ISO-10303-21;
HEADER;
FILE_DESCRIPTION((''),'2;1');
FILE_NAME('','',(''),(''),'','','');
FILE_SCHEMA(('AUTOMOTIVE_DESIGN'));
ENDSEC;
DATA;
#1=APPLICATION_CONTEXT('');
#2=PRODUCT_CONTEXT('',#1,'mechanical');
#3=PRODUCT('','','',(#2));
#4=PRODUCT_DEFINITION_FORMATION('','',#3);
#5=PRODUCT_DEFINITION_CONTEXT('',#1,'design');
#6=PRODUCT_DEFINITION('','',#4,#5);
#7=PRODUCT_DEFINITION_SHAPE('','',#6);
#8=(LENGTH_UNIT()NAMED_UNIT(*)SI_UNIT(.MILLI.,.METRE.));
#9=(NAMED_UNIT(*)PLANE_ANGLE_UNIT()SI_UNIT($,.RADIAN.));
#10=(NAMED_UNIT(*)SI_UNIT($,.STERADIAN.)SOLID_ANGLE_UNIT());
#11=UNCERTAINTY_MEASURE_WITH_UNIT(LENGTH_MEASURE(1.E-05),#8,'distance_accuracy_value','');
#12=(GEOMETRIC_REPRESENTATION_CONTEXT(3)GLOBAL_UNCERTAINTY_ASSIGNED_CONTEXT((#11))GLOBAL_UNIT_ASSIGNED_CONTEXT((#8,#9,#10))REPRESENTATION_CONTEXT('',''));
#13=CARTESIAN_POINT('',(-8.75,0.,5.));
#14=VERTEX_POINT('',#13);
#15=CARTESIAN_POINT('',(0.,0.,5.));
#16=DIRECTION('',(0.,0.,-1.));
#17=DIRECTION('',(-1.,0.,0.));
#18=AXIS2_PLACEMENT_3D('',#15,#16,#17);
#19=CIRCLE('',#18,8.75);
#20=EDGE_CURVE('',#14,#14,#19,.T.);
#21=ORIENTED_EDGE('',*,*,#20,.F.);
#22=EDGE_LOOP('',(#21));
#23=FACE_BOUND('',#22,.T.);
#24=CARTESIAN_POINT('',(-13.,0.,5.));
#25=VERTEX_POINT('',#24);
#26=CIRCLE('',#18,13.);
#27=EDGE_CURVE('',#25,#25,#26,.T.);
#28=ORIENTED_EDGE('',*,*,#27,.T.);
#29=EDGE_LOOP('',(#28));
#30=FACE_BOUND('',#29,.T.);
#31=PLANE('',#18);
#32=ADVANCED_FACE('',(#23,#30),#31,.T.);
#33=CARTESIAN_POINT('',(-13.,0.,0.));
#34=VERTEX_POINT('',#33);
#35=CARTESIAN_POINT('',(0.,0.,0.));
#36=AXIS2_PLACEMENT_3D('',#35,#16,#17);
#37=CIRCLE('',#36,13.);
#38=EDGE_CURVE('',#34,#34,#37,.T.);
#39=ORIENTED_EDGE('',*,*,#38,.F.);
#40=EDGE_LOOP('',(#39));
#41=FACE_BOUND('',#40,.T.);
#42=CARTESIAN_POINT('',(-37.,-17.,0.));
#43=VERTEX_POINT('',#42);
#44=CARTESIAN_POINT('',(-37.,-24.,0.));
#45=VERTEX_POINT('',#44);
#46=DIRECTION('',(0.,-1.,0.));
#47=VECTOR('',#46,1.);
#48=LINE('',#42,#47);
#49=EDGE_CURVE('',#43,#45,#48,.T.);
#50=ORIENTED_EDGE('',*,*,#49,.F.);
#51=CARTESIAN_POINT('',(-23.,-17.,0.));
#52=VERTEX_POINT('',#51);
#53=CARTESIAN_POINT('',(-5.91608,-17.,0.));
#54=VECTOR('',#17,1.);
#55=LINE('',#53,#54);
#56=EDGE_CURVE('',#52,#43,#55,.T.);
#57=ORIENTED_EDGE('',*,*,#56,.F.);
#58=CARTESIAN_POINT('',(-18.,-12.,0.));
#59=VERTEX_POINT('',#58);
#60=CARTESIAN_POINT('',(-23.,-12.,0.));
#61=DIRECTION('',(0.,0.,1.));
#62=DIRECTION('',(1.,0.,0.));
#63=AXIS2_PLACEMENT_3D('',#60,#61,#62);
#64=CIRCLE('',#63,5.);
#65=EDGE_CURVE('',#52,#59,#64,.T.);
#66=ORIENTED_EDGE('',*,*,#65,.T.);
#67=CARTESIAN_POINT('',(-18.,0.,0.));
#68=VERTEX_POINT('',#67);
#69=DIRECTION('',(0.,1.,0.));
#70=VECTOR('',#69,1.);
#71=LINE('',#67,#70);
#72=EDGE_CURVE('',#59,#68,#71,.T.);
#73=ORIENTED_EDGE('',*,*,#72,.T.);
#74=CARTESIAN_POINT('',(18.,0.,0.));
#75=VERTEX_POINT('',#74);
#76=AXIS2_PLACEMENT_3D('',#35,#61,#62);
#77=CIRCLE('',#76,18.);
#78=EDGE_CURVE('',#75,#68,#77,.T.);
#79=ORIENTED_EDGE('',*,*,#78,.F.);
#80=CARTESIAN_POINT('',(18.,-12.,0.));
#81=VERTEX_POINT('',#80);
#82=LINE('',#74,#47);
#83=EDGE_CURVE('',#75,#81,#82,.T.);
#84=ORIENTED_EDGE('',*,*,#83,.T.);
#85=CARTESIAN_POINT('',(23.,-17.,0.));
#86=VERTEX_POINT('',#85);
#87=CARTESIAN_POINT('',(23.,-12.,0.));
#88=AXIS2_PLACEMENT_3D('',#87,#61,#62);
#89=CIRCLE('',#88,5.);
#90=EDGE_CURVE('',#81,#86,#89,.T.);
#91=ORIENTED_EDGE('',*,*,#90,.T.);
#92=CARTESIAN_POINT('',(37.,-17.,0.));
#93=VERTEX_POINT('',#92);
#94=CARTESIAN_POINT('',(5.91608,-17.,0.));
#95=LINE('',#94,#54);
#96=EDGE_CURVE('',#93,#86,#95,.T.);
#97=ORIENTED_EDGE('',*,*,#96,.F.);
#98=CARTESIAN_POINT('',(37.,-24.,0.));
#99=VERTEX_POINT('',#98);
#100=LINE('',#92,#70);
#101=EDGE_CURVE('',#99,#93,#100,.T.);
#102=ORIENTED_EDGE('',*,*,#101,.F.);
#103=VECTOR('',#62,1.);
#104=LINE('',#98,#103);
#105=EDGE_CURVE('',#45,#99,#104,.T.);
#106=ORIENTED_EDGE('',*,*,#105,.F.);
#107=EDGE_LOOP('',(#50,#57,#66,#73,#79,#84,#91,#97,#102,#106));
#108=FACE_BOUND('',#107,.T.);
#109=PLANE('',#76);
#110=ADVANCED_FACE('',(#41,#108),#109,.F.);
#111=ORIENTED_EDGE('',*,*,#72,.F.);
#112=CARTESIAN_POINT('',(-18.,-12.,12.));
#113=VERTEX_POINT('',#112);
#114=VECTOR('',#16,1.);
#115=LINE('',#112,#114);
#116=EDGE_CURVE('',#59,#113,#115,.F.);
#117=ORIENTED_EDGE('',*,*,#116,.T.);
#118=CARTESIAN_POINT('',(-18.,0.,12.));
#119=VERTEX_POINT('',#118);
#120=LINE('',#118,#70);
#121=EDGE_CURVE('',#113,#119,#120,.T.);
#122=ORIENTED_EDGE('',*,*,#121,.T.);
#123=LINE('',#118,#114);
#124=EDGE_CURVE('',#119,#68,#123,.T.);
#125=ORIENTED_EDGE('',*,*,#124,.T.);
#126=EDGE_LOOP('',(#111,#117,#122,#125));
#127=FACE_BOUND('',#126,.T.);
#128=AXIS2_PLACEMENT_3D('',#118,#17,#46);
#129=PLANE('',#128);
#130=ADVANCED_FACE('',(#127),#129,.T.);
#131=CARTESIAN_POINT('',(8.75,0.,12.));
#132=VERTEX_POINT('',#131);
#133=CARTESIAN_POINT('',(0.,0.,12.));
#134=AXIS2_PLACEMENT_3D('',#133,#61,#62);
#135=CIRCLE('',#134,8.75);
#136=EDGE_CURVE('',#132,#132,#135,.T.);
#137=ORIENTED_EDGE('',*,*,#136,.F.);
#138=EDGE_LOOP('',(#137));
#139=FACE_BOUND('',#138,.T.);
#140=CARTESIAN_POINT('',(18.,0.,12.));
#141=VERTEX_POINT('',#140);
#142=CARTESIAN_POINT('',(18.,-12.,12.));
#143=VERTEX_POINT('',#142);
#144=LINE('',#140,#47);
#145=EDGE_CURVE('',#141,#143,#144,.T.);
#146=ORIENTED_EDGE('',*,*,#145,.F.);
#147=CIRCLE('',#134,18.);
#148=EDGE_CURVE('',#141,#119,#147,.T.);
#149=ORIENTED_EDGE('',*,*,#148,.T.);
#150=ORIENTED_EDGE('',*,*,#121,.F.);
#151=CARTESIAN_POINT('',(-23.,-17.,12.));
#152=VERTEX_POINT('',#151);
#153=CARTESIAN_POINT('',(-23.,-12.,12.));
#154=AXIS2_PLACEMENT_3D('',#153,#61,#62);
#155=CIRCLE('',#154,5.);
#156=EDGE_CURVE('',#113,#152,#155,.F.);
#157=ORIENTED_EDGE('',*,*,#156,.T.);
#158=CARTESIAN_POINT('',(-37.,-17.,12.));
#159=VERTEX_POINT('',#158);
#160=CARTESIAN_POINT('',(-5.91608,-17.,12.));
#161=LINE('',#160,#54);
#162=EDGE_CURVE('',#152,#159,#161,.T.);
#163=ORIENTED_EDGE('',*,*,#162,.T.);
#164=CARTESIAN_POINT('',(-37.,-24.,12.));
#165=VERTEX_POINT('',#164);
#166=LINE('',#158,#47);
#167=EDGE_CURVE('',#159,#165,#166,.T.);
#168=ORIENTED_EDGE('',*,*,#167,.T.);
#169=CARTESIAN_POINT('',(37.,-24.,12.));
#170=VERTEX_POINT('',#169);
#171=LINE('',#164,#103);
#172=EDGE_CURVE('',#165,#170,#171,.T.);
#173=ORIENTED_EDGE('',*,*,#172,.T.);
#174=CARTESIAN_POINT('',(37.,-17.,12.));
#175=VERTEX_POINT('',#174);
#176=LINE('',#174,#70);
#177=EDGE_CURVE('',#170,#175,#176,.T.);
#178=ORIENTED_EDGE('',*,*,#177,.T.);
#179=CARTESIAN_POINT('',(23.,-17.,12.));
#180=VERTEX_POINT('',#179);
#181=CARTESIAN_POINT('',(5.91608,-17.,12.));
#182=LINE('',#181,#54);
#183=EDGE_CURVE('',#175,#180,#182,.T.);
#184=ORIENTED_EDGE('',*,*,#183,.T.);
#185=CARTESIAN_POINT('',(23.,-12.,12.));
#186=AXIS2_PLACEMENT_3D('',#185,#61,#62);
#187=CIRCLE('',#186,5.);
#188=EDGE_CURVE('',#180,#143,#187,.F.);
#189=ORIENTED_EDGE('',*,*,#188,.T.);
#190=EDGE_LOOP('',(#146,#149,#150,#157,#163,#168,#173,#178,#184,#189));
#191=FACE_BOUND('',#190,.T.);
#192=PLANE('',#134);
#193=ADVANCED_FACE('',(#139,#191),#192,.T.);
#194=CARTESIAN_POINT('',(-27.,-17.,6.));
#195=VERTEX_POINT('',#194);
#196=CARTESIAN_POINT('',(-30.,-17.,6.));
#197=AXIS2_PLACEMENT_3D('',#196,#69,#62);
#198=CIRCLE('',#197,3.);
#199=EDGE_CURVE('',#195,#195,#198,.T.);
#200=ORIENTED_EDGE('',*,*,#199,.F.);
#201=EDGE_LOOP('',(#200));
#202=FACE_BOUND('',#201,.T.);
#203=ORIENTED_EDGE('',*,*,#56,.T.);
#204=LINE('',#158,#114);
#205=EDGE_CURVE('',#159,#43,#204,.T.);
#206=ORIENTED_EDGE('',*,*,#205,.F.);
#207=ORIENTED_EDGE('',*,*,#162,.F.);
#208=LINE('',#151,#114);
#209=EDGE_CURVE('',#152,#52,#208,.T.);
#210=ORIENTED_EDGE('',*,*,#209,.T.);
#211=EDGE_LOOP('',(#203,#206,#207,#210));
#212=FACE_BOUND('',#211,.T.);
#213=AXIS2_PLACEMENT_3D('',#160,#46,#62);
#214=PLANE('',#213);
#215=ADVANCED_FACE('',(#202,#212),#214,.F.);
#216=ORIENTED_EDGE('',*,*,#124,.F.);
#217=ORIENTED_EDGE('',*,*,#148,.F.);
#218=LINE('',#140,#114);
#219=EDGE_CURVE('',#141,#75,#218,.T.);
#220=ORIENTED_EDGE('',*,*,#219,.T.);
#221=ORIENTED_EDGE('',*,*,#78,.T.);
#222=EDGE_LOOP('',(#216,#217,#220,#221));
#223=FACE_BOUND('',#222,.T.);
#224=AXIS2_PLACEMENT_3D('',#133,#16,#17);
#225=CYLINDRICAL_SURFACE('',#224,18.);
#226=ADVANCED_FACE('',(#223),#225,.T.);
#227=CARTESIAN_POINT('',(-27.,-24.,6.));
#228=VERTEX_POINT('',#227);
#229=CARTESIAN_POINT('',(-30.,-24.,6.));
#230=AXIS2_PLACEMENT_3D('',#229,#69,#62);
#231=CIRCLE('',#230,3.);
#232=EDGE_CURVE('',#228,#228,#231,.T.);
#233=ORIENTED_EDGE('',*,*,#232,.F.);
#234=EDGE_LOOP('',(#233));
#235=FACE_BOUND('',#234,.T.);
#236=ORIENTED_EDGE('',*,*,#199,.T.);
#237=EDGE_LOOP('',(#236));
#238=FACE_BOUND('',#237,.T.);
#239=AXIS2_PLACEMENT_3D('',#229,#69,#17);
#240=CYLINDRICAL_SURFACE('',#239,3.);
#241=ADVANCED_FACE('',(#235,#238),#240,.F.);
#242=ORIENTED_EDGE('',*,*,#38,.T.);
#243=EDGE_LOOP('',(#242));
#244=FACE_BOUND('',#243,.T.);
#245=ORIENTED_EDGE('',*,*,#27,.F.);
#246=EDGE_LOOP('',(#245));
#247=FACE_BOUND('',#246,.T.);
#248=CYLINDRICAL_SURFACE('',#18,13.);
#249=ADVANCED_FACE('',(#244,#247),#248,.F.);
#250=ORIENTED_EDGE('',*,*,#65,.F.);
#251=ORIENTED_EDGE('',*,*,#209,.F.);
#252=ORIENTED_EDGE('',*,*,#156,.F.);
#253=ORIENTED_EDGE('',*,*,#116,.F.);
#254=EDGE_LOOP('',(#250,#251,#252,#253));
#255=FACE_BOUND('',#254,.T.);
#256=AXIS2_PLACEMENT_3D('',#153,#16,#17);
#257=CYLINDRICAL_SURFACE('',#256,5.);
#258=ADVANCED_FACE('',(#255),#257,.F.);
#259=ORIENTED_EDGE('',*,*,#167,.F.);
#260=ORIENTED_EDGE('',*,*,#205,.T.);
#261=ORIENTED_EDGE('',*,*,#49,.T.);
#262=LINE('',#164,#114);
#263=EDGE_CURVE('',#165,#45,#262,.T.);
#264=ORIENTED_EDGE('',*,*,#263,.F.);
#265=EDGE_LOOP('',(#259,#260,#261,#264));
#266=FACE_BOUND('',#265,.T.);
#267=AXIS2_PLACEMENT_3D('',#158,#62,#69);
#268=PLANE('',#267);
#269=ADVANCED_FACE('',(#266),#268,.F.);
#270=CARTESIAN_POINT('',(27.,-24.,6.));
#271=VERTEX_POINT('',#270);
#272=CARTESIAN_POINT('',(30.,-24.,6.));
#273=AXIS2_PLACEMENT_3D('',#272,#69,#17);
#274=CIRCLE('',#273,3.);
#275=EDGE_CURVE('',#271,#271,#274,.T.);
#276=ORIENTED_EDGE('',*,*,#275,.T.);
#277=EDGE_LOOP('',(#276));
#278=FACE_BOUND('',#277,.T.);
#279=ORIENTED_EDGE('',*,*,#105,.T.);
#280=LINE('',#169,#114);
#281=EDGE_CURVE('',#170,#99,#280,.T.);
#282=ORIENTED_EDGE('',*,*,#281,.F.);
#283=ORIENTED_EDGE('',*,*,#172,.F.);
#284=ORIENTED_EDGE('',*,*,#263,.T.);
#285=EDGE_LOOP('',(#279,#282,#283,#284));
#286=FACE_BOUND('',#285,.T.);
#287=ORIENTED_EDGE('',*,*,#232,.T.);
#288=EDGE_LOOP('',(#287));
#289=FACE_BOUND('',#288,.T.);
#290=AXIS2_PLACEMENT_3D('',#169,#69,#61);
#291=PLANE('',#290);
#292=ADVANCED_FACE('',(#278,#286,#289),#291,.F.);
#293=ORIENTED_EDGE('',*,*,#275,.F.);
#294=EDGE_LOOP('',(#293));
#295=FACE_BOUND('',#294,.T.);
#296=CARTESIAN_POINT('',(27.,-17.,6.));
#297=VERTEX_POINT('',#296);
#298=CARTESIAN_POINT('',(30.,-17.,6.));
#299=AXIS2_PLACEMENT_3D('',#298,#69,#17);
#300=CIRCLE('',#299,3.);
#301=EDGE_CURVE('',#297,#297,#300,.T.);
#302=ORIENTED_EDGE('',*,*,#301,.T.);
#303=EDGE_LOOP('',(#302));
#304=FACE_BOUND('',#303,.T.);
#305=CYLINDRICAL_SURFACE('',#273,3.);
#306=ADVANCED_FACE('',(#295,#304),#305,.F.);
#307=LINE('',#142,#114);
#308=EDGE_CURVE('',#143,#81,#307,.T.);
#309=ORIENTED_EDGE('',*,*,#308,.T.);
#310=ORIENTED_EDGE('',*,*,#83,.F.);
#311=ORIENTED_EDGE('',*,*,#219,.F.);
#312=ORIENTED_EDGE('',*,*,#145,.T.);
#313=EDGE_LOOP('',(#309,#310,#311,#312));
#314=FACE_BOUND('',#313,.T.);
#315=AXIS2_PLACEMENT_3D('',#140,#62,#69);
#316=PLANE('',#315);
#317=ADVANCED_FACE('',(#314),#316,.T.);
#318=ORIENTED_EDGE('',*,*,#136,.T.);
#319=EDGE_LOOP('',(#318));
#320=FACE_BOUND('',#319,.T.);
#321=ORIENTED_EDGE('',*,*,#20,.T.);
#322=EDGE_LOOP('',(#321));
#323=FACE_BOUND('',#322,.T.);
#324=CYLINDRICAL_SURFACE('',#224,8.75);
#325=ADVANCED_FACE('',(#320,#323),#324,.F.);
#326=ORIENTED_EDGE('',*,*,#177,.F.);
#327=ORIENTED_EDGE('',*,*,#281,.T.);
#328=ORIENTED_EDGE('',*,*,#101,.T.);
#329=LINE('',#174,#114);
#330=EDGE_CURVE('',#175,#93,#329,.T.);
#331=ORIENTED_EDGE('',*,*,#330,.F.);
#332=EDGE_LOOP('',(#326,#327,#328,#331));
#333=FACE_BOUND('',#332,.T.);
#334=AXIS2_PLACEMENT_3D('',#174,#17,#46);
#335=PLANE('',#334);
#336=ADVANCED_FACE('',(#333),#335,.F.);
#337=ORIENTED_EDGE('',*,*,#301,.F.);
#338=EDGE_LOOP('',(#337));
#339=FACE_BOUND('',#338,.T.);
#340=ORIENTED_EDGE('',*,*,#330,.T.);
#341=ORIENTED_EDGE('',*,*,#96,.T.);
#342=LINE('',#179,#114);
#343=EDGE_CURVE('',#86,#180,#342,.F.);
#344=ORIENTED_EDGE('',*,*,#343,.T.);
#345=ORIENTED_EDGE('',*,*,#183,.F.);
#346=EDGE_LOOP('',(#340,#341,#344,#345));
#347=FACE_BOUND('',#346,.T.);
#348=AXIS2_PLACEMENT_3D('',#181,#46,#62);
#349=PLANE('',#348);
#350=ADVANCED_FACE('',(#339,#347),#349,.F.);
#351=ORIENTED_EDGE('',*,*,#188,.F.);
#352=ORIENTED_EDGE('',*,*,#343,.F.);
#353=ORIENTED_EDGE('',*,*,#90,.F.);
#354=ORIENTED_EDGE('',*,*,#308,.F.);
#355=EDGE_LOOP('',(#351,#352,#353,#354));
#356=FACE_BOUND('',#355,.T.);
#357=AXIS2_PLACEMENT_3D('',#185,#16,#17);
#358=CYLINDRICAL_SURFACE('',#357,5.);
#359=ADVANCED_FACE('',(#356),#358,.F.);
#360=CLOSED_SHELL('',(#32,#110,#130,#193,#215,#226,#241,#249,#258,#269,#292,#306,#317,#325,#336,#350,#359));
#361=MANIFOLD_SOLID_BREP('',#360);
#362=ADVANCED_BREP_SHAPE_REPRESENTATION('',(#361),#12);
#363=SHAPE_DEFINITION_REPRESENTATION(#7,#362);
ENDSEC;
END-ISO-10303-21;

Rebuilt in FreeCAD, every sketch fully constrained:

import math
import FreeCAD as App
import Part
import Sketcher

V = App.Vector


def edges_at(feature, points):
    """Names of the edges that pass closest to the given points."""
    edges = feature.Shape.Edges
    near = lambda p: min(range(len(edges)), key=lambda i: edges[i].distToShape(Part.Vertex(*p))[0])
    return sorted({f"Edge{near(p) + 1}" for p in points})


def add_polygon(sketch, points):
    """Adds a closed chain of lines whose ends are joined by coincident constraints."""
    first, n = sketch.GeometryCount, len(points)
    for a, b in zip(points, points[1:] + points[:1]):
        sketch.addGeometry(Part.LineSegment(App.Vector(*a, 0), App.Vector(*b, 0)), False)
    for i in range(n):
        sketch.addConstraint(Sketcher.Constraint("Coincident", first + i, 2, first + (i + 1) % n, 1))

doc = App.newDocument("Part")
body = doc.addObject("PartDesign::Body", "Body")

# Sketch on XY plane
sketch1 = body.newObject("Sketcher::SketchObject", "Sketch")
sketch1.AttachmentSupport = (doc.getObject("XY_Plane"), [""])
sketch1.MapMode = "FlatFace"
sketch1.addGeometry([
    Part.LineSegment(V(-6, -17, 0), V(-37, -17, 0)),  # 0
    Part.LineSegment(V(-37, -17, 0), V(-37, -24, 0)),  # 1
    Part.LineSegment(V(-37, -24, 0), V(37, -24, 0)),  # 2
    Part.LineSegment(V(37, -24, 0), V(37, -17, 0)),  # 3
    Part.LineSegment(V(37, -17, 0), V(6, -17, 0)),  # 4
    Part.ArcOfCircle(Part.Circle(V(0, 0, 0), V(0, 0, 1), 18), math.radians(-71), math.radians(251)),  # 5
    Part.Circle(V(0, 0, 0), V(0, 0, 1), 9),  # 6
], False)
sketch1.addConstraint([
    Sketcher.Constraint("Coincident", 0, 2, 1, 1),
    Sketcher.Constraint("Coincident", 1, 2, 2, 1),
    Sketcher.Constraint("Coincident", 2, 2, 3, 1),
    Sketcher.Constraint("Coincident", 3, 2, 4, 1),
    Sketcher.Constraint("Coincident", 4, 2, 5, 1),
    Sketcher.Constraint("Coincident", 5, 2, 0, 1),
    Sketcher.Constraint("Horizontal", 0),
    Sketcher.Constraint("Vertical", 1),
    Sketcher.Constraint("Horizontal", 2),
    Sketcher.Constraint("Vertical", 3),
    Sketcher.Constraint("Horizontal", 4),
    Sketcher.Constraint("Coincident", 5, 3, -1, 1),
    Sketcher.Constraint("Coincident", 6, 3, -1, 1),
    Sketcher.Constraint("Symmetric", 0, 2, 3, 2, -2),
    Sketcher.Constraint("Radius", 5, 18.0),
    Sketcher.Constraint("Diameter", 6, 17.5),
    Sketcher.Constraint("DistanceX", 2, 1, 2, 2, 74.0),
    Sketcher.Constraint("DistanceY", 1, 2, 1, 1, 7.0),
    Sketcher.Constraint("DistanceY", 0, 2, -1, 1, 17.0),
])
pad1 = body.newObject("PartDesign::Pad", "Pad")
pad1.Profile = sketch1
pad1.Length = 12

# Sketch on XZ plane
sketch2 = body.newObject("Sketcher::SketchObject", "Sketch001")
sketch2.AttachmentSupport = (doc.getObject("XZ_Plane"), [""])
sketch2.MapMode = "FlatFace"
sketch2.AttachmentOffset = App.Placement(V(0, 0, 17), App.Rotation())
sketch2.addGeometry([
    Part.Circle(V(30, 6, 0), V(0, 0, 1), 3),
    Part.Circle(V(-30, 6, 0), V(0, 0, 1), 3),
], False)
sketch2.addConstraint([
    Sketcher.Constraint("Equal", 0, 1),
    Sketcher.Constraint("Symmetric", 0, 3, 1, 3, -2),
    Sketcher.Constraint("Diameter", 0, 6.0),
    Sketcher.Constraint("DistanceX", -1, 1, 0, 3, 30.0),
    Sketcher.Constraint("DistanceY", -1, 1, 0, 3, 6.0),
])
pocket1 = body.newObject("PartDesign::Pocket", "Pocket")
pocket1.Profile = sketch2
pocket1.Type = "ThroughAll"
pocket1.Reversed = True

# Sketch on XY plane
sketch3 = body.newObject("Sketcher::SketchObject", "Sketch002")
sketch3.AttachmentSupport = (doc.getObject("XY_Plane"), [""])
sketch3.MapMode = "FlatFace"
sketch3.addGeometry(Part.Circle(V(0, 0, 0), V(0, 0, 1), 13), False)
sketch3.addConstraint([
    Sketcher.Constraint("Coincident", 0, 3, -1, 1),
    Sketcher.Constraint("Diameter", 0, 26.0),
])
pocket2 = body.newObject("PartDesign::Pocket", "Pocket001")
pocket2.Profile = sketch3
pocket2.Length = 5
pocket2.Reversed = True

# Sketch on XY plane
sketch4 = body.newObject("Sketcher::SketchObject", "Sketch003")
sketch4.AttachmentSupport = (doc.getObject("XY_Plane"), [""])
sketch4.MapMode = "FlatFace"
add_polygon(sketch4, [(6, -17), (18, 0), (18, -17)])  # lines 0-2
add_polygon(sketch4, [(-18, -17), (-18, 0), (-6, -17)])  # lines 3-5
sketch4.addConstraint([
    Sketcher.Constraint("Vertical", 1),
    Sketcher.Constraint("Horizontal", 2),
    Sketcher.Constraint("Vertical", 3),
    Sketcher.Constraint("Horizontal", 5),
    Sketcher.Constraint("Symmetric", 0, 2, 3, 2, -1, 1),
    Sketcher.Constraint("Symmetric", 2, 2, 4, 2, -2),
    Sketcher.Constraint("PointOnObject", 0, 2, -1),
    Sketcher.Constraint("DistanceY", 1, 2, 1, 1, 17.0),
    Sketcher.Constraint("DistanceX", -1, 1, 0, 2, 18.0),
    Sketcher.Constraint("DistanceX", 2, 2, 2, 1, 12.08392),
])
pad2 = body.newObject("PartDesign::Pad", "Pad001")
pad2.Profile = sketch4
pad2.Type = "UpToLast"
doc.recompute()

fillet = body.newObject("PartDesign::Fillet", "Fillet")
fillet.Base = (pad2, edges_at(pad2, [(-18, -17, 6), (18, -17, 6)]))
fillet.Radius = 5

doc.recompute()
